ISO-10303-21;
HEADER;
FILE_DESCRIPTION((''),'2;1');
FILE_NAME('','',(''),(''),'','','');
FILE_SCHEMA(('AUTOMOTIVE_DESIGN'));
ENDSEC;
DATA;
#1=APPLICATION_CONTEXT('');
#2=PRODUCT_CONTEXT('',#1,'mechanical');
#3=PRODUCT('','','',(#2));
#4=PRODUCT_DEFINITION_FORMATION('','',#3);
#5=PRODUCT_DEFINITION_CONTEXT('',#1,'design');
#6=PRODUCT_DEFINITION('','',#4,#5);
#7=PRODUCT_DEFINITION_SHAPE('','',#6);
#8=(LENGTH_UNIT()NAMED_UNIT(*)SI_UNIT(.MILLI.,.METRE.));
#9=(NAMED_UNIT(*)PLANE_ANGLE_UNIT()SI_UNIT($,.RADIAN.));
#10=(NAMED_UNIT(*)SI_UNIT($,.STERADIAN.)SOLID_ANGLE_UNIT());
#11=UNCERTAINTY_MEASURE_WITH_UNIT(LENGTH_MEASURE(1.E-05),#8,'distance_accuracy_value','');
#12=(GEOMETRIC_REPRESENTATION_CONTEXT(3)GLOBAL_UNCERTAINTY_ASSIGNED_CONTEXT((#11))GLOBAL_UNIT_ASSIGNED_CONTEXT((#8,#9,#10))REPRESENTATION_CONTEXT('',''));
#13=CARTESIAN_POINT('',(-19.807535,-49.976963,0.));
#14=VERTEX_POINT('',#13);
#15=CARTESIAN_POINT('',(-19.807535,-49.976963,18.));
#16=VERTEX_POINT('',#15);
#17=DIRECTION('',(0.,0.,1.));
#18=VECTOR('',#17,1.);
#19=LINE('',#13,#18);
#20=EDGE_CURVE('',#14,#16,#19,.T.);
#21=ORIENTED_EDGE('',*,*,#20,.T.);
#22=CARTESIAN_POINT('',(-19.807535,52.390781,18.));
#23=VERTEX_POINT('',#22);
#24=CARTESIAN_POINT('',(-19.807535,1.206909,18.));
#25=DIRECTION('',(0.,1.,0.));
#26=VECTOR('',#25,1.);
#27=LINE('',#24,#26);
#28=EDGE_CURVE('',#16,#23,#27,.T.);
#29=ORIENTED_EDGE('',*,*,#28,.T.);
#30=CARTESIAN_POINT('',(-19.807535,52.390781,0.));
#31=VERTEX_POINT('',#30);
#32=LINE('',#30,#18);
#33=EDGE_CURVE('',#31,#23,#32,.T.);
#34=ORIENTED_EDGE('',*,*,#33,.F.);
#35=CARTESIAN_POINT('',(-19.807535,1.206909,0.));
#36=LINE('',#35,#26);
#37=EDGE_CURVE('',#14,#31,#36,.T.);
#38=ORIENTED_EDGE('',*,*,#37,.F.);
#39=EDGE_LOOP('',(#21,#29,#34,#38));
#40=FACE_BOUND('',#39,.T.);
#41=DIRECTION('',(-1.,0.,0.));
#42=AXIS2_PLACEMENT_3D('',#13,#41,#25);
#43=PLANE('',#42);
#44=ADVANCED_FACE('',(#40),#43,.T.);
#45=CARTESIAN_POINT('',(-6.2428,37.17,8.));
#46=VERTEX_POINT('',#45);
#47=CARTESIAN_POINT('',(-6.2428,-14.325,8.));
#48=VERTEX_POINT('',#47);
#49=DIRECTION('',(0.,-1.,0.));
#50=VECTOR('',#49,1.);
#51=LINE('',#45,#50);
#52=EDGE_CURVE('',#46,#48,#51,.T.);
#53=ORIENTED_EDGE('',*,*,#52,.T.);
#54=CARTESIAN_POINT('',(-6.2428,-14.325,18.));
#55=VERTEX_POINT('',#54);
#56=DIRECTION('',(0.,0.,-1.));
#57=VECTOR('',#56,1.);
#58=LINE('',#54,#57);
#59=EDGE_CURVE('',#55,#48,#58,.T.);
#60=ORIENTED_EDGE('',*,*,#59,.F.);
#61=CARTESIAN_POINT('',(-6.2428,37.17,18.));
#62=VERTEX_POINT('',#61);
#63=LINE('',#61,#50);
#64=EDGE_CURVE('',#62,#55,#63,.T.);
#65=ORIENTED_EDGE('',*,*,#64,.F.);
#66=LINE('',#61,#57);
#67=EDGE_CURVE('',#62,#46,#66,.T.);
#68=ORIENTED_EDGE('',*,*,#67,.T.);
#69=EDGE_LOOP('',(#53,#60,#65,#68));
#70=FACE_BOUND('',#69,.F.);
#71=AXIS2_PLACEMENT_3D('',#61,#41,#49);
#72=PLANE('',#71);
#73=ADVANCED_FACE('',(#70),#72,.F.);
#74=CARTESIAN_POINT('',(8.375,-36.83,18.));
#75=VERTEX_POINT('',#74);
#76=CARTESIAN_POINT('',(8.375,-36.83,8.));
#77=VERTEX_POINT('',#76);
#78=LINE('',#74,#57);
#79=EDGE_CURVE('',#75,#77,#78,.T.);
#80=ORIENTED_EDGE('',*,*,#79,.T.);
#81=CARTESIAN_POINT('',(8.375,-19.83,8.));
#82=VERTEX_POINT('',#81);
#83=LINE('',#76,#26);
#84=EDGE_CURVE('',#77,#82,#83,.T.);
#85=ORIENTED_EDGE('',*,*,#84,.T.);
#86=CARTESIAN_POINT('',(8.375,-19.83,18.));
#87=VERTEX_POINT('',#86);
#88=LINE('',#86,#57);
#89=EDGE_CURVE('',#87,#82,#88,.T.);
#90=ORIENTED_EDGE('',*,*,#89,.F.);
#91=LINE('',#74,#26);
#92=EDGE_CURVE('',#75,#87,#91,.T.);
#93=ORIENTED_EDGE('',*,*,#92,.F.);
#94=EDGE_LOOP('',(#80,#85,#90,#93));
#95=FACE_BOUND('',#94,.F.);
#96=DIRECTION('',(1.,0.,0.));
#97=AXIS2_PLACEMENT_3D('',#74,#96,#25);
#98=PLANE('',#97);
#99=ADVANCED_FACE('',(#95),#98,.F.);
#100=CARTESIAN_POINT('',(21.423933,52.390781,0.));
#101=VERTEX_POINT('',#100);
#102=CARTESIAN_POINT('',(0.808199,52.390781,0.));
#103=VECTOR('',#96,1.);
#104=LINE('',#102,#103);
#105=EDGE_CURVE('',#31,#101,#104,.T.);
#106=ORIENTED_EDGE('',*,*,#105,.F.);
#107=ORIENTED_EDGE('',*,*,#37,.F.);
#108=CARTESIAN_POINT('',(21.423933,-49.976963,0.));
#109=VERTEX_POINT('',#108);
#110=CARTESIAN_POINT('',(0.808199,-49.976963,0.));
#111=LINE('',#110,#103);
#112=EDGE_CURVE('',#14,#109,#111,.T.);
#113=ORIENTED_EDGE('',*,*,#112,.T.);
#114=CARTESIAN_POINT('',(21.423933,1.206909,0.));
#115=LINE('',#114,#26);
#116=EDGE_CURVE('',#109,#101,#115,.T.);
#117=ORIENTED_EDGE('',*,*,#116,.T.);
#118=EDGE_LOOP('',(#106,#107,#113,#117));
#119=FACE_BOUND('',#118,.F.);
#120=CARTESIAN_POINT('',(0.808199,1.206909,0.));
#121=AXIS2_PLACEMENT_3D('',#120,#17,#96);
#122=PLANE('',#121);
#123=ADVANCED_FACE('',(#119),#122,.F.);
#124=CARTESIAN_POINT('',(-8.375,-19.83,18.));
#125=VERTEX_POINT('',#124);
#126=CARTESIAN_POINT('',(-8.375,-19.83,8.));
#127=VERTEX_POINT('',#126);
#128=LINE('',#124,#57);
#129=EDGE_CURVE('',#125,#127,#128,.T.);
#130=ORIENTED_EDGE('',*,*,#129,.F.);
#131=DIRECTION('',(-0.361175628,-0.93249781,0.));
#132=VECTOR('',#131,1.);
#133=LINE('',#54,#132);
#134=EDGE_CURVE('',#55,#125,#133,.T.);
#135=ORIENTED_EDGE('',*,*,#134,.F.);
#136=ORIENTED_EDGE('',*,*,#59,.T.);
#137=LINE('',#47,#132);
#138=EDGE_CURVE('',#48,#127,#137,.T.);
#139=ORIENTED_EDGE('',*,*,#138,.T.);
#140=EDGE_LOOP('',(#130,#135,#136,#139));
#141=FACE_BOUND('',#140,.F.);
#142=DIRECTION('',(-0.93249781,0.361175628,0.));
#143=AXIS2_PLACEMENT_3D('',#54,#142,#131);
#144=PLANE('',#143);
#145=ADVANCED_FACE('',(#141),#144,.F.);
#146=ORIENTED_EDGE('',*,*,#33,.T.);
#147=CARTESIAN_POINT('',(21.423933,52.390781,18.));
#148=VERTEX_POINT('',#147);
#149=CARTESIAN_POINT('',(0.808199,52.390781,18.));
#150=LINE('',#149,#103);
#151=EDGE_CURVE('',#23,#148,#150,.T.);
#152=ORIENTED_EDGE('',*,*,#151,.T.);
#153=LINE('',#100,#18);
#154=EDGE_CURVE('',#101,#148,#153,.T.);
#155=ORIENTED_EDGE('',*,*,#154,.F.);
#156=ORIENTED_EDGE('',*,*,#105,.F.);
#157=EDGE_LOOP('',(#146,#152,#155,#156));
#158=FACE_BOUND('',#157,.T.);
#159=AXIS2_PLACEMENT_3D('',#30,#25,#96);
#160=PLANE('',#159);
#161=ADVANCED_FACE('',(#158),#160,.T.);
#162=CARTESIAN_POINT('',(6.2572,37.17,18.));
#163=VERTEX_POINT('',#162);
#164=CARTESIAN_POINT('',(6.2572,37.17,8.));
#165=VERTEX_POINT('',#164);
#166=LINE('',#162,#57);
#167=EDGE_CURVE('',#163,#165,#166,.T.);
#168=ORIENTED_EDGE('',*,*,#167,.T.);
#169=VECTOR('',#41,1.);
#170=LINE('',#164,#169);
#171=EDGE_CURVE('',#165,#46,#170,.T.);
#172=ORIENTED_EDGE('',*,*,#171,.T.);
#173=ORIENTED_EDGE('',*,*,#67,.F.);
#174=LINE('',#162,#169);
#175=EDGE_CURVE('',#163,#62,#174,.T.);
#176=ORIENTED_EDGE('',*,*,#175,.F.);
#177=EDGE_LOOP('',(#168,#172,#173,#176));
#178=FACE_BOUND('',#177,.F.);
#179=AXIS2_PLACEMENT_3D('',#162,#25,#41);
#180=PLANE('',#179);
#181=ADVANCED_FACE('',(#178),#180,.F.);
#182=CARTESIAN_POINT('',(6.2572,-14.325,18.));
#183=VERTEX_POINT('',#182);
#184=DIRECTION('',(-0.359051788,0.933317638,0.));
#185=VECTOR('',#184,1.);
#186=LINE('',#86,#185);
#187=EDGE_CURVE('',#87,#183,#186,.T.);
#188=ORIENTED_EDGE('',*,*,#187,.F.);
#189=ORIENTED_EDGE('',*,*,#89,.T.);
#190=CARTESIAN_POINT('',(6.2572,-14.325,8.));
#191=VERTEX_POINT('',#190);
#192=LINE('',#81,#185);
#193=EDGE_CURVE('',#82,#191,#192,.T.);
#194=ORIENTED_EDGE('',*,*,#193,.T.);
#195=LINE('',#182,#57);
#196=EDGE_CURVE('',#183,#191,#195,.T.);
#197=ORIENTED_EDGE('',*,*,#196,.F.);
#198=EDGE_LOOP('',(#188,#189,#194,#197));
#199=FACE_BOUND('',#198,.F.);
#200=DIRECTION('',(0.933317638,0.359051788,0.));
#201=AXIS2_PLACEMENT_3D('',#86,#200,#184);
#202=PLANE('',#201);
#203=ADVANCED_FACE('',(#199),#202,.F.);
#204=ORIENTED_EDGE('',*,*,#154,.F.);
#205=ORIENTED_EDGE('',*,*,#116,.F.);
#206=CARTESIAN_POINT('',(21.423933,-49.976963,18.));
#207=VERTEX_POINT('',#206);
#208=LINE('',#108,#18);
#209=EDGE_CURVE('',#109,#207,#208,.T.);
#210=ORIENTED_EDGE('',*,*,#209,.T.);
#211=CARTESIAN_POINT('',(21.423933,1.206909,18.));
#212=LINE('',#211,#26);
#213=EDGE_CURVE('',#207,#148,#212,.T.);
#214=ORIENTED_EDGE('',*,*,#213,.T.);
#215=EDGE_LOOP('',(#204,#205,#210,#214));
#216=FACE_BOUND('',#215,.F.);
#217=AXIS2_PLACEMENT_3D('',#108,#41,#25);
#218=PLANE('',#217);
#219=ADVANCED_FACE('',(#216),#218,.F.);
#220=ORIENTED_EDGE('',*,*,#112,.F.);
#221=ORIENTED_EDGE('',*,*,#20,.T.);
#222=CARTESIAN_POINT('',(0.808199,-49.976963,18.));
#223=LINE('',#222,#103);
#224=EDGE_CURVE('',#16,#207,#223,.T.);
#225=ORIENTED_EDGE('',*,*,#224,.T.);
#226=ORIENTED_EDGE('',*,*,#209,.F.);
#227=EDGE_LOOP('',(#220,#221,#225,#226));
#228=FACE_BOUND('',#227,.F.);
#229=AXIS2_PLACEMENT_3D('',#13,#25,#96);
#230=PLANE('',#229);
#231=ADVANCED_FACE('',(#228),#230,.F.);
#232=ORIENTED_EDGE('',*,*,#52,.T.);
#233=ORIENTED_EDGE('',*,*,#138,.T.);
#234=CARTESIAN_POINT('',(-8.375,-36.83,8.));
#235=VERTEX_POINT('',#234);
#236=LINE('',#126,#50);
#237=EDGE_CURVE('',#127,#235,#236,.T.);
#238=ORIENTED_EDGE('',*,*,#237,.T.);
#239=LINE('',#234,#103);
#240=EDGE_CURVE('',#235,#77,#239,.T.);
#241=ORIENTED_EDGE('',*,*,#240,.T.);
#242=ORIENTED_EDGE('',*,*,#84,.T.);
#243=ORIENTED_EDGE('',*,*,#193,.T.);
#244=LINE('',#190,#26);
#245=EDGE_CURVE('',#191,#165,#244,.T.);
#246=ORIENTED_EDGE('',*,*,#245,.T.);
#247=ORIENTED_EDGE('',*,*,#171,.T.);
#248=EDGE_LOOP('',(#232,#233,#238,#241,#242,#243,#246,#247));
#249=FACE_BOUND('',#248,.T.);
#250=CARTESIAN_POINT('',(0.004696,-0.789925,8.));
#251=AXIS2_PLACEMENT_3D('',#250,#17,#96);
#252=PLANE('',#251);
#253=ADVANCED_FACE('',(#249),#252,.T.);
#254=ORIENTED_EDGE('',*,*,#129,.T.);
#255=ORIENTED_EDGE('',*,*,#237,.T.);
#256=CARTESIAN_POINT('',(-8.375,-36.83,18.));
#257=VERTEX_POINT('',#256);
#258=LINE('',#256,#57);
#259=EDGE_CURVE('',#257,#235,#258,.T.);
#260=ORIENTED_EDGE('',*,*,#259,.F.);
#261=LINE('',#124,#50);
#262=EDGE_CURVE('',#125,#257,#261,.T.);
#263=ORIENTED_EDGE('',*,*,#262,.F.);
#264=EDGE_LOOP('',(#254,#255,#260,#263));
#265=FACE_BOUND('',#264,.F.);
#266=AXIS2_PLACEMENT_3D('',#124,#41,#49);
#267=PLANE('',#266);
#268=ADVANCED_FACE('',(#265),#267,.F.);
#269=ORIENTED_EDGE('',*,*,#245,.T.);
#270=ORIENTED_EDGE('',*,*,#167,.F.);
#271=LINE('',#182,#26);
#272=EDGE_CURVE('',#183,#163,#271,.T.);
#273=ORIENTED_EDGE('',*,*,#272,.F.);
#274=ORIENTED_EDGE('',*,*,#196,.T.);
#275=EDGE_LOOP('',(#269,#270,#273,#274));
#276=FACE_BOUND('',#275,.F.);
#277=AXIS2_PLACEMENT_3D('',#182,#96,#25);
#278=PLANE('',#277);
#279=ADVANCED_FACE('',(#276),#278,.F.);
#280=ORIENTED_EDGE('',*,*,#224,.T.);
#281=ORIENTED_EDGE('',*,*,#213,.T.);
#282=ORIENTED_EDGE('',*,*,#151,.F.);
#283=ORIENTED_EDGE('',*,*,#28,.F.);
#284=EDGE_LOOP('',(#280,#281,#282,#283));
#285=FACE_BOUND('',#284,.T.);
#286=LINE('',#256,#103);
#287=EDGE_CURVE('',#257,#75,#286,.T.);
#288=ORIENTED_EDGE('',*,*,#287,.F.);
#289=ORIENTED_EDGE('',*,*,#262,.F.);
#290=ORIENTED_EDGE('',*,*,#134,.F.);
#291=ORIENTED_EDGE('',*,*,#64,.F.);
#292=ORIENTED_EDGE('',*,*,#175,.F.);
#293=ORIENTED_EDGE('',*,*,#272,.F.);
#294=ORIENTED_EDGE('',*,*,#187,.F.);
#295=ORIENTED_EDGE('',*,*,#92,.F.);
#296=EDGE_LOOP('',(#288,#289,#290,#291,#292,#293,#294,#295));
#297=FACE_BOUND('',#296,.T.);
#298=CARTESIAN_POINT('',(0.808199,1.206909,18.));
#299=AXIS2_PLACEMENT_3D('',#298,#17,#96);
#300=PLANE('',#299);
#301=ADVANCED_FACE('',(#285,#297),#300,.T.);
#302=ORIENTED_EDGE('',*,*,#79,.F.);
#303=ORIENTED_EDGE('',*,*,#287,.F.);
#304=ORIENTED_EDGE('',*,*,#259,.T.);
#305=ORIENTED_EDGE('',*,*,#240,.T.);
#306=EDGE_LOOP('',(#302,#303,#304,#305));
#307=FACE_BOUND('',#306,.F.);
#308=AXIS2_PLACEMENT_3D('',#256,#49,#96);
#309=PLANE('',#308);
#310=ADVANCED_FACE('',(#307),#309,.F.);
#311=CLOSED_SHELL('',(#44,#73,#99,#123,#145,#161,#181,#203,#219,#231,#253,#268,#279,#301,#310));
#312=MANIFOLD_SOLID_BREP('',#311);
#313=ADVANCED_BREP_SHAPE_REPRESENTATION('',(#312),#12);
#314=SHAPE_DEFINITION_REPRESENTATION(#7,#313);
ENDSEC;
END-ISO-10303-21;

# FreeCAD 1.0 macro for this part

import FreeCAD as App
import Part
import Sketcher

doc = App.newDocument("Part")
body = doc.addObject("PartDesign::Body", "Body")

# Sketch on XY plane
sketch1 = body.newObject("Sketcher::SketchObject", "Sketch")
sketch1.AttachmentSupport = (doc.getObject("XY_Plane"), [""])
sketch1.MapMode = "FlatFace"
sketch1.addGeometry([
    Part.LineSegment(App.Vector(-20, 52, 0), App.Vector(-20, -50, 0)),
    Part.LineSegment(App.Vector(-20, -50, 0), App.Vector(21, -50, 0)),
    Part.LineSegment(App.Vector(21, -50, 0), App.Vector(21, 52, 0)),
    Part.LineSegment(App.Vector(21, 52, 0), App.Vector(-20, 52, 0)),
], False)
sketch1.addConstraint([
    Sketcher.Constraint("Coincident", 0, 2, 1, 1),
    Sketcher.Constraint("Coincident", 1, 2, 2, 1),
    Sketcher.Constraint("Coincident", 2, 2, 3, 1),
    Sketcher.Constraint("Coincident", 3, 2, 0, 1),
    Sketcher.Constraint("Vertical", 0),
    Sketcher.Constraint("Horizontal", 1),
    Sketcher.Constraint("Vertical", 2),
    Sketcher.Constraint("Horizontal", 3),
    Sketcher.Constraint("DistanceX", 1, 1, 1, 2, 41.231468),
    Sketcher.Constraint("DistanceY", 0, 2, 0, 1, 102.367744),
    Sketcher.Constraint("DistanceY", -1, 1, 2, 2, 52.390781),
    Sketcher.Constraint("DistanceX", 0, 2, -1, 1, 19.807535),
])
pad1 = body.newObject("PartDesign::Pad", "Pad")
pad1.Profile = sketch1
pad1.Length = 18

# Sketch on XY plane
sketch2 = body.newObject("Sketcher::SketchObject", "Sketch001")
sketch2.AttachmentSupport = (doc.getObject("XY_Plane"), [""])
sketch2.MapMode = "FlatFace"
sketch2.AttachmentOffset = App.Placement(App.Vector(0, 0, 18), App.Rotation())
sketch2.addGeometry([
    Part.LineSegment(App.Vector(-6, 37, 0), App.Vector(-6, -14, 0)),  # 0
    Part.LineSegment(App.Vector(-6, -14, 0), App.Vector(-8, -20, 0)),  # 1
    Part.LineSegment(App.Vector(-8, -20, 0), App.Vector(-8, -37, 0)),  # 2
    Part.LineSegment(App.Vector(-8, -37, 0), App.Vector(8, -37, 0)),  # 3
    Part.LineSegment(App.Vector(8, -37, 0), App.Vector(8, -20, 0)),  # 4
    Part.LineSegment(App.Vector(8, -20, 0), App.Vector(6, -14, 0)),  # 5
    Part.LineSegment(App.Vector(6, -14, 0), App.Vector(6, 37, 0)),  # 6
    Part.LineSegment(App.Vector(6, 37, 0), App.Vector(-6, 37, 0)),  # 7
], False)
sketch2.addConstraint([
    Sketcher.Constraint("Coincident", 0, 2, 1, 1),
    Sketcher.Constraint("Coincident", 1, 2, 2, 1),
    Sketcher.Constraint("Coincident", 2, 2, 3, 1),
    Sketcher.Constraint("Coincident", 3, 2, 4, 1),
    Sketcher.Constraint("Coincident", 4, 2, 5, 1),
    Sketcher.Constraint("Coincident", 5, 2, 6, 1),
    Sketcher.Constraint("Coincident", 6, 2, 7, 1),
    Sketcher.Constraint("Coincident", 7, 2, 0, 1),
    Sketcher.Constraint("Vertical", 0),
    Sketcher.Constraint("Vertical", 2),
    Sketcher.Constraint("Horizontal", 3),
    Sketcher.Constraint("Vertical", 4),
    Sketcher.Constraint("Vertical", 6),
    Sketcher.Constraint("Horizontal", 7),
    Sketcher.Constraint("Symmetric", 1, 2, 4, 2, -2),
    Sketcher.Constraint("Horizontal", 0, 2, 5, 2),
    Sketcher.Constraint("DistanceY", 2, 2, 2, 1, 17.0),
    Sketcher.Constraint("DistanceX", 7, 2, 7, 1, 12.5),
    Sketcher.Constraint("DistanceY", 4, 2, 6, 2, 57.0),
    Sketcher.Constraint("DistanceX", 3, 1, 3, 2, 16.75),
    Sketcher.Constraint("DistanceY", 0, 2, 0, 1, 51.495),
    Sketcher.Constraint("DistanceY", 1, 2, -1, 1, 19.83),
    Sketcher.Constraint("Distance", 1, 5.903499),
])
pocket1 = body.newObject("PartDesign::Pocket", "Pocket")
pocket1.Profile = sketch2
pocket1.Length = 10

doc.recompute()
